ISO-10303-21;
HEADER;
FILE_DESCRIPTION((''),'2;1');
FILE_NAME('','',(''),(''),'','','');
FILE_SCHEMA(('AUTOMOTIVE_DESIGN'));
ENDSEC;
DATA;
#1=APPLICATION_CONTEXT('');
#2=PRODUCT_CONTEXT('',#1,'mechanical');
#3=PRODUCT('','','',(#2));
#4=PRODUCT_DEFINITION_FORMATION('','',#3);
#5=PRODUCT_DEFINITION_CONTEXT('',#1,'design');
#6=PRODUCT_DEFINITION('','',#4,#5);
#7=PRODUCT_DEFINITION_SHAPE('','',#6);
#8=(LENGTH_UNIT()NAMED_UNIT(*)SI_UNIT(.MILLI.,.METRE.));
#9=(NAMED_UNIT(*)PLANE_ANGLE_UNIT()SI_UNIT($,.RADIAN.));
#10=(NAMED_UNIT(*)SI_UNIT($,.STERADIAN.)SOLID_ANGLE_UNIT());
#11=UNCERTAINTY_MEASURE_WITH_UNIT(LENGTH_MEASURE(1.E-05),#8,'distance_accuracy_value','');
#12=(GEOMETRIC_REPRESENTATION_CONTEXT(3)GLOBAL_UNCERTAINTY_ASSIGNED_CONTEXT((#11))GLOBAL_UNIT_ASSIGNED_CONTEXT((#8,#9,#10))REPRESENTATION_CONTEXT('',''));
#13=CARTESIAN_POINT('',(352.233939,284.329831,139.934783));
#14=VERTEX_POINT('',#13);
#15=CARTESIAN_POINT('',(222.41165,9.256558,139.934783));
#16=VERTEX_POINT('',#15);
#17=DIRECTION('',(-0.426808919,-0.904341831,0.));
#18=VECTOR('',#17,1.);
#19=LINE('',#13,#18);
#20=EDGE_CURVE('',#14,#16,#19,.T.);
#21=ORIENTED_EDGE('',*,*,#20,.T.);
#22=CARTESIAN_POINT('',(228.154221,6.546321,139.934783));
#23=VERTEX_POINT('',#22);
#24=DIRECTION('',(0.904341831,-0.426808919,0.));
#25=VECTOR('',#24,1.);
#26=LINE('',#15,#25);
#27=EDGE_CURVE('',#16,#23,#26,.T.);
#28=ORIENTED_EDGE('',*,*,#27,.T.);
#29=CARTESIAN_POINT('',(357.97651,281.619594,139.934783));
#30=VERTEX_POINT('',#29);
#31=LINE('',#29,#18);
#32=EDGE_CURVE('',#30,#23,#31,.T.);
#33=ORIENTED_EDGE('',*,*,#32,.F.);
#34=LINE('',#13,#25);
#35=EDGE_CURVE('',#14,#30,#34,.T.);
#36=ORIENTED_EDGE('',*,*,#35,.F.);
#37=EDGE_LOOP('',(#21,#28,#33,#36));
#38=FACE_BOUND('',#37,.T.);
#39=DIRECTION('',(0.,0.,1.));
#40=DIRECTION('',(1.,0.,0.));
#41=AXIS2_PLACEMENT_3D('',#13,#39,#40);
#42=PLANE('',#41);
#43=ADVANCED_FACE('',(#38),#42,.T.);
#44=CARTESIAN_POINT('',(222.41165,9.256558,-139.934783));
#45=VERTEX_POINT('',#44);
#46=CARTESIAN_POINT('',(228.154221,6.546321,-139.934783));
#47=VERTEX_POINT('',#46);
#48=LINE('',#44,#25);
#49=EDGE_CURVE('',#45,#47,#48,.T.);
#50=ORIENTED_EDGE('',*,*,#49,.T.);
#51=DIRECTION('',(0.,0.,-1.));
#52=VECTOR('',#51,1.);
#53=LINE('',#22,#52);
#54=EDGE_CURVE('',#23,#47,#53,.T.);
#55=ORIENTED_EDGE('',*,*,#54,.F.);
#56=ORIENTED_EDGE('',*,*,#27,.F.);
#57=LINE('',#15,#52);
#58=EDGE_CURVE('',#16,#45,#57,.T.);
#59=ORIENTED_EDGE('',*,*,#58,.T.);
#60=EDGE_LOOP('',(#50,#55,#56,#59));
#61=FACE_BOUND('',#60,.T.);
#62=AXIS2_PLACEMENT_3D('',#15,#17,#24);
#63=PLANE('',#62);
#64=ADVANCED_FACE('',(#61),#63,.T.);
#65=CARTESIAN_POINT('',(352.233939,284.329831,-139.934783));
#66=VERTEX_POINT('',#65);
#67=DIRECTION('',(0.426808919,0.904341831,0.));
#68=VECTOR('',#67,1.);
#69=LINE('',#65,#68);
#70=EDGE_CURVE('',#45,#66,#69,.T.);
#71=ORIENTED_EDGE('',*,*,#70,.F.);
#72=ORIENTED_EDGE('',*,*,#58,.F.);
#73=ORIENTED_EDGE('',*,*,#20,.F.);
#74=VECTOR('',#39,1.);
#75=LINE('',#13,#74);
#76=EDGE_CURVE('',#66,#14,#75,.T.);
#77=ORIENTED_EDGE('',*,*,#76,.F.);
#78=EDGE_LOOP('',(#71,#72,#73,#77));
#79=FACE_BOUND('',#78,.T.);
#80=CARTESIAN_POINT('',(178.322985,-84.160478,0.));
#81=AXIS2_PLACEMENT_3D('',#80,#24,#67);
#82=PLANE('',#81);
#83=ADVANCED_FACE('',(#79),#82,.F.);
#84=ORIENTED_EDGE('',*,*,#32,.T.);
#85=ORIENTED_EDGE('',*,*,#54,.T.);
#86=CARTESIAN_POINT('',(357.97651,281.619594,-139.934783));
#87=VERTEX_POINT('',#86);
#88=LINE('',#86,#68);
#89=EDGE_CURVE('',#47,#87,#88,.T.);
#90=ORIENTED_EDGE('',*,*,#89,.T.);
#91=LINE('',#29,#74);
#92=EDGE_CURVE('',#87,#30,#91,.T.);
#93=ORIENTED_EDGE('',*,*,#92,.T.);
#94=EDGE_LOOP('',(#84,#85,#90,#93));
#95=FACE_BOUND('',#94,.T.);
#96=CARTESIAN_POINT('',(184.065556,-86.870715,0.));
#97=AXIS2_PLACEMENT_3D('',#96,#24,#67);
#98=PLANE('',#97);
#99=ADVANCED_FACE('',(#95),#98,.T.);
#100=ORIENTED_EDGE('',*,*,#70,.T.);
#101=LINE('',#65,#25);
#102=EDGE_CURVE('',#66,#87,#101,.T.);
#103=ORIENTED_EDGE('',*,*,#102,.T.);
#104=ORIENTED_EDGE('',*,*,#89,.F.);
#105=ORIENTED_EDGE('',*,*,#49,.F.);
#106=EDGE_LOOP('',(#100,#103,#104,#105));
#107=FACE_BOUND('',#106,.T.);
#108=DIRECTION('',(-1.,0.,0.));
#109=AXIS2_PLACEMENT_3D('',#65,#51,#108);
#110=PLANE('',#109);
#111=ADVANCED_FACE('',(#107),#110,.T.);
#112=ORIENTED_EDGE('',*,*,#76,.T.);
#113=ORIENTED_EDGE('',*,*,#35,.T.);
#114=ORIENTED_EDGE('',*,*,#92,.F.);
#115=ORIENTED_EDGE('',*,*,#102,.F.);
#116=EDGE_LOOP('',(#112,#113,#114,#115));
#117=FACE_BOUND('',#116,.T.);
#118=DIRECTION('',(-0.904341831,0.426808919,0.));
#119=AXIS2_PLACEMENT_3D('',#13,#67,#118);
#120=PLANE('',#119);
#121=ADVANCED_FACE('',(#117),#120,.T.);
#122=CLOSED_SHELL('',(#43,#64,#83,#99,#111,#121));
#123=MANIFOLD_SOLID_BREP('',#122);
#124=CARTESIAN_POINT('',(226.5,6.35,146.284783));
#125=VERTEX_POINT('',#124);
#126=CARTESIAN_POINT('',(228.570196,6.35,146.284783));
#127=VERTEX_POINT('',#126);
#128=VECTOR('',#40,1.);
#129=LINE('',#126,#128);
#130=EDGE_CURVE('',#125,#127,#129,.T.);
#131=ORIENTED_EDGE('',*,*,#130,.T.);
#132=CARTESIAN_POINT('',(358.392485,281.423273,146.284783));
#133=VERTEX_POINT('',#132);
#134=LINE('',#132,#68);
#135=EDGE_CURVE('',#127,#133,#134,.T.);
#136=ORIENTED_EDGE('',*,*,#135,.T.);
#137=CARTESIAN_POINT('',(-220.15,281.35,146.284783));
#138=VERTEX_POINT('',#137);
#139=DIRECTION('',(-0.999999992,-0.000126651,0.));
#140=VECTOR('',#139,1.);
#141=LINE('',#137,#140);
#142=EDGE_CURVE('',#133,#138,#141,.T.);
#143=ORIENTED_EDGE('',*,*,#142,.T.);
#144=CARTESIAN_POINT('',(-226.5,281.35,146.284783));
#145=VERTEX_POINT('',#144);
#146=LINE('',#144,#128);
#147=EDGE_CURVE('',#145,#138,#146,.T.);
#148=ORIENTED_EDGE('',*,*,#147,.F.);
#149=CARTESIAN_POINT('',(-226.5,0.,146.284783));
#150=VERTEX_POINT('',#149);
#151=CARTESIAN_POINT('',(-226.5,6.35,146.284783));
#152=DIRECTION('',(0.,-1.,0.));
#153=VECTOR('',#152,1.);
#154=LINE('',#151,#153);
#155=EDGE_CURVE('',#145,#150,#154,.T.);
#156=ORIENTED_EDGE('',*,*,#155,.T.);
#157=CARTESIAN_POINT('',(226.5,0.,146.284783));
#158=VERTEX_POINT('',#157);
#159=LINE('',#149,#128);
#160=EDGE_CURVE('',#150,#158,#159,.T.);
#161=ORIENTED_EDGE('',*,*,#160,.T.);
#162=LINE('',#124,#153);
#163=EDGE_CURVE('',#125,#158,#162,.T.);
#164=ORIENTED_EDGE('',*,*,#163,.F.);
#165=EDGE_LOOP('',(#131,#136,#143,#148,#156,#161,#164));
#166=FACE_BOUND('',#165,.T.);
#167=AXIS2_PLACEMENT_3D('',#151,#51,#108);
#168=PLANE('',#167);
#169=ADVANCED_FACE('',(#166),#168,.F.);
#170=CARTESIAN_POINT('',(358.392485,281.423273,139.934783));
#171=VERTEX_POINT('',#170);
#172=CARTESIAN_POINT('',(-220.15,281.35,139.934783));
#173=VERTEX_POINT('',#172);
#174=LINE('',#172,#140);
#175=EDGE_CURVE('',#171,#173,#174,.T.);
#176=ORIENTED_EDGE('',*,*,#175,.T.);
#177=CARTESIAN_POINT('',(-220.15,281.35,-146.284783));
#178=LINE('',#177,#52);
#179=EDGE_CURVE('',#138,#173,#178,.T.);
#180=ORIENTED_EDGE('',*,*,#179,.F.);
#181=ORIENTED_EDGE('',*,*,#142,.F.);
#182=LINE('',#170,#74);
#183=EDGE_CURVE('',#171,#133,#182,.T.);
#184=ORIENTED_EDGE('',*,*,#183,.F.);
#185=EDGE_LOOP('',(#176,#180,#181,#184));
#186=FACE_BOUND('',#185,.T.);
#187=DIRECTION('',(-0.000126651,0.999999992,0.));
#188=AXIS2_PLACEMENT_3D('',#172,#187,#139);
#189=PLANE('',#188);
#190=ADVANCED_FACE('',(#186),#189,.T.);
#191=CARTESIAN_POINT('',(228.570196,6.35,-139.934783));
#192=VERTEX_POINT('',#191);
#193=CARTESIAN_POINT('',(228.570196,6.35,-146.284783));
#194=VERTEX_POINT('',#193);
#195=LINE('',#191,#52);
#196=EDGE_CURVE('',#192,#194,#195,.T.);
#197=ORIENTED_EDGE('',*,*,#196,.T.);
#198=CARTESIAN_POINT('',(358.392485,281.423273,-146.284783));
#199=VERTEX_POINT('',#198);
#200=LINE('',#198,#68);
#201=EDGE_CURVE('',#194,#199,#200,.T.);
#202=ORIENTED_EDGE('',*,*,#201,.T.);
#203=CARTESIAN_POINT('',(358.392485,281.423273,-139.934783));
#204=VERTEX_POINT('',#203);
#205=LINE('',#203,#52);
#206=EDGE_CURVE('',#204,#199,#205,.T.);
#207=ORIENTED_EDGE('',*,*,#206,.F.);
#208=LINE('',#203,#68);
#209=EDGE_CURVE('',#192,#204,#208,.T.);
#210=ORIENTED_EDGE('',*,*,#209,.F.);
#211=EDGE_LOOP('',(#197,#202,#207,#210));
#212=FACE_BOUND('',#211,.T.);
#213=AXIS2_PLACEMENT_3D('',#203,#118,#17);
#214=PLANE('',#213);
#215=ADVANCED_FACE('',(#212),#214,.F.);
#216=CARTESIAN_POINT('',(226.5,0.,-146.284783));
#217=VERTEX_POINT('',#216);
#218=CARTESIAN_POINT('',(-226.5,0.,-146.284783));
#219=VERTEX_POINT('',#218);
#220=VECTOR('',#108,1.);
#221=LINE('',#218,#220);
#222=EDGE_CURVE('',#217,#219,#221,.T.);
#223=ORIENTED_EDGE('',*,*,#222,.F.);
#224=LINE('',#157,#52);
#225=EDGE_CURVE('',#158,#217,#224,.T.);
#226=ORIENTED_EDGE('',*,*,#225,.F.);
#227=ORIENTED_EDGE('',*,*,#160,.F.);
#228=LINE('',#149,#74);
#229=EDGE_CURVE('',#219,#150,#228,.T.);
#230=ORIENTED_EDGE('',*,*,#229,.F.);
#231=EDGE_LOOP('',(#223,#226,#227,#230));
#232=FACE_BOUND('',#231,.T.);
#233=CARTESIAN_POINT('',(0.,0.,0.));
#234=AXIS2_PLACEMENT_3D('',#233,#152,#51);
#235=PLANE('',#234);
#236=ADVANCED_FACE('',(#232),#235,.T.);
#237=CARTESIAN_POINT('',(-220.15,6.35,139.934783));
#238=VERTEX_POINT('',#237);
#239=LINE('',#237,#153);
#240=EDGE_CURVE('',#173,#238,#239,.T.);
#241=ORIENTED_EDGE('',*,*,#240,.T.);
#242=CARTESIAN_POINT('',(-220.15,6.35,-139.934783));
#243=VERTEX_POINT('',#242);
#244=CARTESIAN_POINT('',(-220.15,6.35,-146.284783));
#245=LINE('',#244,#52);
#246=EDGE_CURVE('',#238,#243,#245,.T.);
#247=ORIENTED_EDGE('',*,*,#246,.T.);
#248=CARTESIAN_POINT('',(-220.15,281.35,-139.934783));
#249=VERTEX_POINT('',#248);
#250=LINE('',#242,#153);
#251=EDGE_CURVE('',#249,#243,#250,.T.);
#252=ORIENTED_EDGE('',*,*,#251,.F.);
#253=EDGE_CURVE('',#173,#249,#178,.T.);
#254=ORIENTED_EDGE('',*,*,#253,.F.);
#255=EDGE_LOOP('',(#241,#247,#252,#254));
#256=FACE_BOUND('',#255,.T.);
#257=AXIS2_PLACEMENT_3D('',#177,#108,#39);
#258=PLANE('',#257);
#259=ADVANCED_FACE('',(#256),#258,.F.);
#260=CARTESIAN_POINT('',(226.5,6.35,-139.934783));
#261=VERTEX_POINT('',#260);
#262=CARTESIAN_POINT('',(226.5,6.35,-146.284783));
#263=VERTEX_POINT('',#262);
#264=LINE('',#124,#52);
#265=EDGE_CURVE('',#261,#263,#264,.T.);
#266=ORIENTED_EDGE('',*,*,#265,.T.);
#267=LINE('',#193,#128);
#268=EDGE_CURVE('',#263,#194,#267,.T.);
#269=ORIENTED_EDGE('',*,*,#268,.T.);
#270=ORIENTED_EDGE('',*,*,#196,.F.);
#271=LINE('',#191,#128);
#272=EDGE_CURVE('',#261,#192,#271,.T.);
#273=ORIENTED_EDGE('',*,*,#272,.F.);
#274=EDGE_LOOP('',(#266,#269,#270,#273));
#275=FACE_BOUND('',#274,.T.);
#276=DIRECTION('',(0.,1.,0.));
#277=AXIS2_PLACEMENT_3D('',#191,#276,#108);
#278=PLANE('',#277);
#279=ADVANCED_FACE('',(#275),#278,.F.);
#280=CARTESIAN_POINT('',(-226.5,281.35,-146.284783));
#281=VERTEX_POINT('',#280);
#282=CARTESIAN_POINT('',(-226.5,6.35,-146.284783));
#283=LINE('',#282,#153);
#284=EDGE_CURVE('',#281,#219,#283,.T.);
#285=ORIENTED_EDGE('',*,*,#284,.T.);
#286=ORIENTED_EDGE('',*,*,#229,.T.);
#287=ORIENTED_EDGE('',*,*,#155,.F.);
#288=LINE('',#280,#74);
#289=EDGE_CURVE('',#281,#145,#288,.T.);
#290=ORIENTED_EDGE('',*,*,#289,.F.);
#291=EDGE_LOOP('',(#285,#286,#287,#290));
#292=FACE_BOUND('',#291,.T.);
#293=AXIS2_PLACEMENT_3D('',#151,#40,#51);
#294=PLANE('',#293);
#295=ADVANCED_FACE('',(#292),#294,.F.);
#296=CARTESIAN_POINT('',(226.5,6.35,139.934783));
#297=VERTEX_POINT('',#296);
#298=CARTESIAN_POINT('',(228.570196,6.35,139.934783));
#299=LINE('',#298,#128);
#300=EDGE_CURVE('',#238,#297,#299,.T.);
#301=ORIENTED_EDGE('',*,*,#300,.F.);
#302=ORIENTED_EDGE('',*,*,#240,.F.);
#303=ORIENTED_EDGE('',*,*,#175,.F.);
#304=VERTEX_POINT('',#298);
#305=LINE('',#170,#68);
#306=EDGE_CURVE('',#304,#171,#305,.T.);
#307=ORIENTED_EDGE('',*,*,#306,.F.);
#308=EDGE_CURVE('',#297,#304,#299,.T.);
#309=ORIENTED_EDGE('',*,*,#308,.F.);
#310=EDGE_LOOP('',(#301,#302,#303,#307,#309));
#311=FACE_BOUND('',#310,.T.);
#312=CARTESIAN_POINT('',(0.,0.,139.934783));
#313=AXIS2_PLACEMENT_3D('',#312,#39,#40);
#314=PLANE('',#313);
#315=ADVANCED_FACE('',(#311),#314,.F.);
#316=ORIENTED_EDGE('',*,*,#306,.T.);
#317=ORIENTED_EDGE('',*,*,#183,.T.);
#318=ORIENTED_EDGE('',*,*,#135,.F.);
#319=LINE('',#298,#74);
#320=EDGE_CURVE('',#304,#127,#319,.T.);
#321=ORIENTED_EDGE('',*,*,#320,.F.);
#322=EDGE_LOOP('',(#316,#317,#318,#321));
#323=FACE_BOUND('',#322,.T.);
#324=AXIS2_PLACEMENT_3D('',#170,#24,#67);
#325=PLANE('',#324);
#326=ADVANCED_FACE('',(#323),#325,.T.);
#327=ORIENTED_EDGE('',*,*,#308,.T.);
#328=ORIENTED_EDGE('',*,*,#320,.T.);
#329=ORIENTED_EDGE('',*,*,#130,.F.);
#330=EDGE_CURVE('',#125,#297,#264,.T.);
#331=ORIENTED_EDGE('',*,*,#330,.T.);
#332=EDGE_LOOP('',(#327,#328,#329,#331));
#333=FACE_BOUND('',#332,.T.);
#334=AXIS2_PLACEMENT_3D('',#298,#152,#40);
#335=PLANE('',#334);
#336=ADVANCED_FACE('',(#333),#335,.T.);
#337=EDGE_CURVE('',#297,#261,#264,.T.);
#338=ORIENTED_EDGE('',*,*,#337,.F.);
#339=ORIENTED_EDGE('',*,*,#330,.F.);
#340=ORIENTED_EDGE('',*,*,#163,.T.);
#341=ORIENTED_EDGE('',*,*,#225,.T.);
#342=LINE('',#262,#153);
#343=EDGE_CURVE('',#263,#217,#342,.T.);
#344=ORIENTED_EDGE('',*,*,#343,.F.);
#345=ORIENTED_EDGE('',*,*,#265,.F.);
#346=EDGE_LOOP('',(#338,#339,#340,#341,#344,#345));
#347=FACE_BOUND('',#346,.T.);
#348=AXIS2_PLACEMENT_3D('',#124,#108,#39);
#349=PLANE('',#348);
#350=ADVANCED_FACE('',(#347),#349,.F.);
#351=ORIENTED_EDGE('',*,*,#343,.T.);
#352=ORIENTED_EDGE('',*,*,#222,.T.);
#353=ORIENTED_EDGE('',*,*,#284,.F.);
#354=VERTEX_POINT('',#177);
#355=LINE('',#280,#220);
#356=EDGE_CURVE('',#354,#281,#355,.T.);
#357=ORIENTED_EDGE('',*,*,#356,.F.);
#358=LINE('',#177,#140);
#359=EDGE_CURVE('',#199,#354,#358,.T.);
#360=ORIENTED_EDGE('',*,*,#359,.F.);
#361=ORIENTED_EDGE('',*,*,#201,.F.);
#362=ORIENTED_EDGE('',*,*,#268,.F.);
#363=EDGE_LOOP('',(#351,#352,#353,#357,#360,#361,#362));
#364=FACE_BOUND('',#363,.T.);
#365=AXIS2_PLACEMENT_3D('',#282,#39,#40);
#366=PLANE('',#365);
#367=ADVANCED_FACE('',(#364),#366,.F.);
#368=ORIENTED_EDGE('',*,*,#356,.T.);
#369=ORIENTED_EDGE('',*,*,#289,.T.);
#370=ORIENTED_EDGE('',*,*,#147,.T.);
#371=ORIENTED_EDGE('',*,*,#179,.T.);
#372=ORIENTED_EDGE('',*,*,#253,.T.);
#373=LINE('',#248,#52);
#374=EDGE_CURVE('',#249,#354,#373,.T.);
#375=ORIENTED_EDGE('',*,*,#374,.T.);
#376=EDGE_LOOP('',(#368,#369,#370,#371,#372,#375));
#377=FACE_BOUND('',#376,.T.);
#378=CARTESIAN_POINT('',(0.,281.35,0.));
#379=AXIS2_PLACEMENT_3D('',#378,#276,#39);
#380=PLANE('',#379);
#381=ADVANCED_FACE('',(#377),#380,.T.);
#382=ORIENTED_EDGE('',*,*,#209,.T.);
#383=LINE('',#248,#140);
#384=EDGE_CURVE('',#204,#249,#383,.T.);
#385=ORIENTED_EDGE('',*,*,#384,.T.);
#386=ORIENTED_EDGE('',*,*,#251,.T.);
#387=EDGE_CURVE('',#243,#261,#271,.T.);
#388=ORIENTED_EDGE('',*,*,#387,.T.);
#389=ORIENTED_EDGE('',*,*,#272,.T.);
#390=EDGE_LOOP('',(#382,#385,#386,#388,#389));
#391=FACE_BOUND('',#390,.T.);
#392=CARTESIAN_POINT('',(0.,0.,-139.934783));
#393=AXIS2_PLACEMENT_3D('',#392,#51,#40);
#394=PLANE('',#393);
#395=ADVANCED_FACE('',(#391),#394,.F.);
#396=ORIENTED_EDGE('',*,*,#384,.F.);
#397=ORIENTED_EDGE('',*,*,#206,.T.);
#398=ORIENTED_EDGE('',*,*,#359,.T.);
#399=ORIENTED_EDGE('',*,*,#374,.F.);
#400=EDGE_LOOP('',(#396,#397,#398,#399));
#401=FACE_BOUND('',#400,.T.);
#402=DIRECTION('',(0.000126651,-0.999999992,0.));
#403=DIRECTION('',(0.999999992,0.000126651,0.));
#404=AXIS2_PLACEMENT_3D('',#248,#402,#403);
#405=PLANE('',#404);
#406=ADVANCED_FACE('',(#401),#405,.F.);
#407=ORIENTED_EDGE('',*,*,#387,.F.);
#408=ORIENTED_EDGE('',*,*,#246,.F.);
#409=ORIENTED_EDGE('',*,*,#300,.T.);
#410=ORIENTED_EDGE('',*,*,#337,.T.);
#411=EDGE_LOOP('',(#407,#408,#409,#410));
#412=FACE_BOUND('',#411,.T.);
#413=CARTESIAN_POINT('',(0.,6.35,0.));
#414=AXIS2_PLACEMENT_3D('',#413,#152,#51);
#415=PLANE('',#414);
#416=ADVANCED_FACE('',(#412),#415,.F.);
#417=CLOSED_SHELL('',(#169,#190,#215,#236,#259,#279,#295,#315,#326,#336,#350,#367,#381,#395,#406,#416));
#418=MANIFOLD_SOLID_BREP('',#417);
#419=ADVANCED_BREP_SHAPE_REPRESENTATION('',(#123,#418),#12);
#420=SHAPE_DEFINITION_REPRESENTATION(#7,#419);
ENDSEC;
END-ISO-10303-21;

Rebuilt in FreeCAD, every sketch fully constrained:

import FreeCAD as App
import Part
import Sketcher
from FreeCAD import Vector

doc = App.newDocument("Part")
body = doc.addObject("PartDesign::Body", "Body")

# Sketch on XZ plane
sketch1 = doc.addObject("Sketcher::SketchObject", "Sketch")
body.addObject(sketch1)
sketch1.AttachmentSupport = (doc.XZ_Plane, [""])
sketch1.MapMode = "FlatFace"
sketch1.addGeometry(Part.LineSegment(Vector(-226, -146, 0), Vector(-226, 146, 0)), False)
sketch1.addGeometry(Part.LineSegment(Vector(-226, 146, 0), Vector(226, 146, 0)), False)
sketch1.addGeometry(Part.LineSegment(Vector(226, 146, 0), Vector(226, -146, 0)), False)
sketch1.addGeometry(Part.LineSegment(Vector(226, -146, 0), Vector(-226, -146, 0)), False)
sketch1.addConstraint(Sketcher.Constraint("Coincident", 0, 2, 1, 1))
sketch1.addConstraint(Sketcher.Constraint("Coincident", 1, 2, 2, 1))
sketch1.addConstraint(Sketcher.Constraint("Coincident", 2, 2, 3, 1))
sketch1.addConstraint(Sketcher.Constraint("Coincident", 3, 2, 0, 1))
sketch1.addConstraint(Sketcher.Constraint("Vertical", 0))
sketch1.addConstraint(Sketcher.Constraint("Horizontal", 1))
sketch1.addConstraint(Sketcher.Constraint("Vertical", 2))
sketch1.addConstraint(Sketcher.Constraint("Horizontal", 3))
sketch1.addConstraint(Sketcher.Constraint("Symmetric", 0, 2, 2, 2, -1, 1))
sketch1.addConstraint(Sketcher.Constraint("DistanceX", 1, 1, 1, 2, 453.0))
sketch1.addConstraint(Sketcher.Constraint("DistanceY", 0, 1, 0, 2, 292.569565))
pad1 = doc.addObject("PartDesign::Pad", "Pad")
body.addObject(pad1)
pad1.Profile = sketch1
pad1.Length = 6.35
pad1.Reversed = True

# Sketch on XZ plane
sketch2 = doc.addObject("Sketcher::SketchObject", "Sketch001")
body.addObject(sketch2)
sketch2.AttachmentSupport = (doc.XZ_Plane, [""])
sketch2.MapMode = "FlatFace"
sketch2.AttachmentOffset = App.Placement(Vector(0, 0, -6.35), App.Rotation())
sketch2.addGeometry(Part.LineSegment(Vector(-226, -146, 0), Vector(-226, 146, 0)), False)
sketch2.addGeometry(Part.LineSegment(Vector(-226, 146, 0), Vector(-220, 146, 0)), False)
sketch2.addGeometry(Part.LineSegment(Vector(-220, 146, 0), Vector(-220, -146, 0)), False)
sketch2.addGeometry(Part.LineSegment(Vector(-220, -146, 0), Vector(-226, -146, 0)), False)
sketch2.addConstraint(Sketcher.Constraint("Coincident", 0, 2, 1, 1))
sketch2.addConstraint(Sketcher.Constraint("Coincident", 1, 2, 2, 1))
sketch2.addConstraint(Sketcher.Constraint("Coincident", 2, 2, 3, 1))
sketch2.addConstraint(Sketcher.Constraint("Coincident", 3, 2, 0, 1))
sketch2.addConstraint(Sketcher.Constraint("Vertical", 0))
sketch2.addConstraint(Sketcher.Constraint("Horizontal", 1))
sketch2.addConstraint(Sketcher.Constraint("Vertical", 2))
sketch2.addConstraint(Sketcher.Constraint("Horizontal", 3))
sketch2.addConstraint(Sketcher.Constraint("DistanceX", 1, 1, 1, 2, 6.35))
sketch2.addConstraint(Sketcher.Constraint("DistanceX", 0, 2, -1, 1, 226.5))
sketch2.addConstraint(Sketcher.Constraint("DistanceY", 0, 1, 0, 2, 292.569565))
sketch2.addConstraint(Sketcher.Constraint("DistanceY", -1, 1, 0, 2, 146.284783))
pad2 = doc.addObject("PartDesign::Pad", "Pad001")
body.addObject(pad2)
pad2.Profile = sketch2
pad2.Length = 275
pad2.Reversed = True

# Sketch on XY plane
sketch3 = doc.addObject("Sketcher::SketchObject", "Sketch002")
body.addObject(sketch3)
sketch3.AttachmentSupport = (doc.XY_Plane, [""])
sketch3.MapMode = "FlatFace"
sketch3.AttachmentOffset = App.Placement(Vector(0, 0, 146.284783), App.Rotation())
sketch3.addGeometry(Part.LineSegment(Vector(229, 6, 0), Vector(358, 281, 0)), False)
sketch3.addGeometry(Part.LineSegment(Vector(358, 281, 0), Vector(-220, 281, 0)), False)
sketch3.addGeometry(Part.LineSegment(Vector(-220, 281, 0), Vector(-220, 6, 0)), False)
sketch3.addGeometry(Part.LineSegment(Vector(-220, 6, 0), Vector(229, 6, 0)), False)
sketch3.addConstraint(Sketcher.Constraint("Coincident", 0, 2, 1, 1))
sketch3.addConstraint(Sketcher.Constraint("Coincident", 1, 2, 2, 1))
sketch3.addConstraint(Sketcher.Constraint("Coincident", 2, 2, 3, 1))
sketch3.addConstraint(Sketcher.Constraint("Coincident", 3, 2, 0, 1))
sketch3.addConstraint(Sketcher.Constraint("Vertical", 2))
sketch3.addConstraint(Sketcher.Constraint("Horizontal", 3))
sketch3.addConstraint(Sketcher.Constraint("DistanceY", 2, 2, 2, 1, 275.0))
sketch3.addConstraint(Sketcher.Constraint("DistanceX", 1, 2, -1, 1, 220.15))
sketch3.addConstraint(Sketcher.Constraint("DistanceY", -1, 1, 1, 2, 281.35))
sketch3.addConstraint(Sketcher.Constraint("Distance", 0, 304.169578))
sketch3.addConstraint(Sketcher.Constraint("Distance", 1, 578.542489))
sketch3.addConstraint(Sketcher.Constraint("DistanceX", 3, 1, 3, 2, 448.720196))
pad3 = doc.addObject("PartDesign::Pad", "Pad002")
body.addObject(pad3)
pad3.Profile = sketch3
pad3.Length = 6.35
pad3.Reversed = True
doc.recompute()

mirrored = doc.addObject("PartDesign::Mirrored", "Mirrored")
body.addObject(mirrored)
mirrored.Originals = [pad3]
mirrored.MirrorPlane = (doc.XY_Plane, [""])
body.Tip = mirrored
body2 = doc.addObject("PartDesign::Body", "Body001")

# Sketch on an angled plane
sketch4 = doc.addObject("Sketcher::SketchObject", "Sketch003")
body2.addObject(sketch4)
sketch4.Placement = App.Placement(Vector(184.065556, -86.870715, 0), App.Rotation(Vector(0, 0, -1), Vector(0.426808919, 0.904341831, 0), Vector(0.904341831, -0.426808919, 0), "ZXY"))
sketch4.addGeometry(Part.LineSegment(Vector(-140, 407, 0), Vector(-140, 103, 0)), False)
sketch4.addGeometry(Part.LineSegment(Vector(-140, 103, 0), Vector(140, 103, 0)), False)
sketch4.addGeometry(Part.LineSegment(Vector(140, 103, 0), Vector(140, 407, 0)), False)
sketch4.addGeometry(Part.LineSegment(Vector(140, 407, 0), Vector(-140, 407, 0)), False)
sketch4.addConstraint(Sketcher.Constraint("Coincident", 0, 2, 1, 1))
sketch4.addConstraint(Sketcher.Constraint("Coincident", 1, 2, 2, 1))
sketch4.addConstraint(Sketcher.Constraint("Coincident", 2, 2, 3, 1))
sketch4.addConstraint(Sketcher.Constraint("Coincident", 3, 2, 0, 1))
sketch4.addConstraint(Sketcher.Constraint("Vertical", 0))
sketch4.addConstraint(Sketcher.Constraint("Horizontal", 1))
sketch4.addConstraint(Sketcher.Constraint("Vertical", 2))
sketch4.addConstraint(Sketcher.Constraint("Horizontal", 3))
sketch4.addConstraint(Sketcher.Constraint("DistanceY", 0, 2, 0, 1, 304.169578))
sketch4.addConstraint(Sketcher.Constraint("DistanceX", 1, 1, 1, 2, 279.869565))
sketch4.addConstraint(Sketcher.Constraint("DistanceY", -1, 1, 0, 2, 103.298369))
sketch4.addConstraint(Sketcher.Constraint("DistanceX", 0, 2, -1, 1, 139.934783))
pad4 = doc.addObject("PartDesign::Pad", "Pad003")
body2.addObject(pad4)
pad4.Profile = sketch4
pad4.Length = 6.35
pad4.Reversed = True

doc.recompute()
